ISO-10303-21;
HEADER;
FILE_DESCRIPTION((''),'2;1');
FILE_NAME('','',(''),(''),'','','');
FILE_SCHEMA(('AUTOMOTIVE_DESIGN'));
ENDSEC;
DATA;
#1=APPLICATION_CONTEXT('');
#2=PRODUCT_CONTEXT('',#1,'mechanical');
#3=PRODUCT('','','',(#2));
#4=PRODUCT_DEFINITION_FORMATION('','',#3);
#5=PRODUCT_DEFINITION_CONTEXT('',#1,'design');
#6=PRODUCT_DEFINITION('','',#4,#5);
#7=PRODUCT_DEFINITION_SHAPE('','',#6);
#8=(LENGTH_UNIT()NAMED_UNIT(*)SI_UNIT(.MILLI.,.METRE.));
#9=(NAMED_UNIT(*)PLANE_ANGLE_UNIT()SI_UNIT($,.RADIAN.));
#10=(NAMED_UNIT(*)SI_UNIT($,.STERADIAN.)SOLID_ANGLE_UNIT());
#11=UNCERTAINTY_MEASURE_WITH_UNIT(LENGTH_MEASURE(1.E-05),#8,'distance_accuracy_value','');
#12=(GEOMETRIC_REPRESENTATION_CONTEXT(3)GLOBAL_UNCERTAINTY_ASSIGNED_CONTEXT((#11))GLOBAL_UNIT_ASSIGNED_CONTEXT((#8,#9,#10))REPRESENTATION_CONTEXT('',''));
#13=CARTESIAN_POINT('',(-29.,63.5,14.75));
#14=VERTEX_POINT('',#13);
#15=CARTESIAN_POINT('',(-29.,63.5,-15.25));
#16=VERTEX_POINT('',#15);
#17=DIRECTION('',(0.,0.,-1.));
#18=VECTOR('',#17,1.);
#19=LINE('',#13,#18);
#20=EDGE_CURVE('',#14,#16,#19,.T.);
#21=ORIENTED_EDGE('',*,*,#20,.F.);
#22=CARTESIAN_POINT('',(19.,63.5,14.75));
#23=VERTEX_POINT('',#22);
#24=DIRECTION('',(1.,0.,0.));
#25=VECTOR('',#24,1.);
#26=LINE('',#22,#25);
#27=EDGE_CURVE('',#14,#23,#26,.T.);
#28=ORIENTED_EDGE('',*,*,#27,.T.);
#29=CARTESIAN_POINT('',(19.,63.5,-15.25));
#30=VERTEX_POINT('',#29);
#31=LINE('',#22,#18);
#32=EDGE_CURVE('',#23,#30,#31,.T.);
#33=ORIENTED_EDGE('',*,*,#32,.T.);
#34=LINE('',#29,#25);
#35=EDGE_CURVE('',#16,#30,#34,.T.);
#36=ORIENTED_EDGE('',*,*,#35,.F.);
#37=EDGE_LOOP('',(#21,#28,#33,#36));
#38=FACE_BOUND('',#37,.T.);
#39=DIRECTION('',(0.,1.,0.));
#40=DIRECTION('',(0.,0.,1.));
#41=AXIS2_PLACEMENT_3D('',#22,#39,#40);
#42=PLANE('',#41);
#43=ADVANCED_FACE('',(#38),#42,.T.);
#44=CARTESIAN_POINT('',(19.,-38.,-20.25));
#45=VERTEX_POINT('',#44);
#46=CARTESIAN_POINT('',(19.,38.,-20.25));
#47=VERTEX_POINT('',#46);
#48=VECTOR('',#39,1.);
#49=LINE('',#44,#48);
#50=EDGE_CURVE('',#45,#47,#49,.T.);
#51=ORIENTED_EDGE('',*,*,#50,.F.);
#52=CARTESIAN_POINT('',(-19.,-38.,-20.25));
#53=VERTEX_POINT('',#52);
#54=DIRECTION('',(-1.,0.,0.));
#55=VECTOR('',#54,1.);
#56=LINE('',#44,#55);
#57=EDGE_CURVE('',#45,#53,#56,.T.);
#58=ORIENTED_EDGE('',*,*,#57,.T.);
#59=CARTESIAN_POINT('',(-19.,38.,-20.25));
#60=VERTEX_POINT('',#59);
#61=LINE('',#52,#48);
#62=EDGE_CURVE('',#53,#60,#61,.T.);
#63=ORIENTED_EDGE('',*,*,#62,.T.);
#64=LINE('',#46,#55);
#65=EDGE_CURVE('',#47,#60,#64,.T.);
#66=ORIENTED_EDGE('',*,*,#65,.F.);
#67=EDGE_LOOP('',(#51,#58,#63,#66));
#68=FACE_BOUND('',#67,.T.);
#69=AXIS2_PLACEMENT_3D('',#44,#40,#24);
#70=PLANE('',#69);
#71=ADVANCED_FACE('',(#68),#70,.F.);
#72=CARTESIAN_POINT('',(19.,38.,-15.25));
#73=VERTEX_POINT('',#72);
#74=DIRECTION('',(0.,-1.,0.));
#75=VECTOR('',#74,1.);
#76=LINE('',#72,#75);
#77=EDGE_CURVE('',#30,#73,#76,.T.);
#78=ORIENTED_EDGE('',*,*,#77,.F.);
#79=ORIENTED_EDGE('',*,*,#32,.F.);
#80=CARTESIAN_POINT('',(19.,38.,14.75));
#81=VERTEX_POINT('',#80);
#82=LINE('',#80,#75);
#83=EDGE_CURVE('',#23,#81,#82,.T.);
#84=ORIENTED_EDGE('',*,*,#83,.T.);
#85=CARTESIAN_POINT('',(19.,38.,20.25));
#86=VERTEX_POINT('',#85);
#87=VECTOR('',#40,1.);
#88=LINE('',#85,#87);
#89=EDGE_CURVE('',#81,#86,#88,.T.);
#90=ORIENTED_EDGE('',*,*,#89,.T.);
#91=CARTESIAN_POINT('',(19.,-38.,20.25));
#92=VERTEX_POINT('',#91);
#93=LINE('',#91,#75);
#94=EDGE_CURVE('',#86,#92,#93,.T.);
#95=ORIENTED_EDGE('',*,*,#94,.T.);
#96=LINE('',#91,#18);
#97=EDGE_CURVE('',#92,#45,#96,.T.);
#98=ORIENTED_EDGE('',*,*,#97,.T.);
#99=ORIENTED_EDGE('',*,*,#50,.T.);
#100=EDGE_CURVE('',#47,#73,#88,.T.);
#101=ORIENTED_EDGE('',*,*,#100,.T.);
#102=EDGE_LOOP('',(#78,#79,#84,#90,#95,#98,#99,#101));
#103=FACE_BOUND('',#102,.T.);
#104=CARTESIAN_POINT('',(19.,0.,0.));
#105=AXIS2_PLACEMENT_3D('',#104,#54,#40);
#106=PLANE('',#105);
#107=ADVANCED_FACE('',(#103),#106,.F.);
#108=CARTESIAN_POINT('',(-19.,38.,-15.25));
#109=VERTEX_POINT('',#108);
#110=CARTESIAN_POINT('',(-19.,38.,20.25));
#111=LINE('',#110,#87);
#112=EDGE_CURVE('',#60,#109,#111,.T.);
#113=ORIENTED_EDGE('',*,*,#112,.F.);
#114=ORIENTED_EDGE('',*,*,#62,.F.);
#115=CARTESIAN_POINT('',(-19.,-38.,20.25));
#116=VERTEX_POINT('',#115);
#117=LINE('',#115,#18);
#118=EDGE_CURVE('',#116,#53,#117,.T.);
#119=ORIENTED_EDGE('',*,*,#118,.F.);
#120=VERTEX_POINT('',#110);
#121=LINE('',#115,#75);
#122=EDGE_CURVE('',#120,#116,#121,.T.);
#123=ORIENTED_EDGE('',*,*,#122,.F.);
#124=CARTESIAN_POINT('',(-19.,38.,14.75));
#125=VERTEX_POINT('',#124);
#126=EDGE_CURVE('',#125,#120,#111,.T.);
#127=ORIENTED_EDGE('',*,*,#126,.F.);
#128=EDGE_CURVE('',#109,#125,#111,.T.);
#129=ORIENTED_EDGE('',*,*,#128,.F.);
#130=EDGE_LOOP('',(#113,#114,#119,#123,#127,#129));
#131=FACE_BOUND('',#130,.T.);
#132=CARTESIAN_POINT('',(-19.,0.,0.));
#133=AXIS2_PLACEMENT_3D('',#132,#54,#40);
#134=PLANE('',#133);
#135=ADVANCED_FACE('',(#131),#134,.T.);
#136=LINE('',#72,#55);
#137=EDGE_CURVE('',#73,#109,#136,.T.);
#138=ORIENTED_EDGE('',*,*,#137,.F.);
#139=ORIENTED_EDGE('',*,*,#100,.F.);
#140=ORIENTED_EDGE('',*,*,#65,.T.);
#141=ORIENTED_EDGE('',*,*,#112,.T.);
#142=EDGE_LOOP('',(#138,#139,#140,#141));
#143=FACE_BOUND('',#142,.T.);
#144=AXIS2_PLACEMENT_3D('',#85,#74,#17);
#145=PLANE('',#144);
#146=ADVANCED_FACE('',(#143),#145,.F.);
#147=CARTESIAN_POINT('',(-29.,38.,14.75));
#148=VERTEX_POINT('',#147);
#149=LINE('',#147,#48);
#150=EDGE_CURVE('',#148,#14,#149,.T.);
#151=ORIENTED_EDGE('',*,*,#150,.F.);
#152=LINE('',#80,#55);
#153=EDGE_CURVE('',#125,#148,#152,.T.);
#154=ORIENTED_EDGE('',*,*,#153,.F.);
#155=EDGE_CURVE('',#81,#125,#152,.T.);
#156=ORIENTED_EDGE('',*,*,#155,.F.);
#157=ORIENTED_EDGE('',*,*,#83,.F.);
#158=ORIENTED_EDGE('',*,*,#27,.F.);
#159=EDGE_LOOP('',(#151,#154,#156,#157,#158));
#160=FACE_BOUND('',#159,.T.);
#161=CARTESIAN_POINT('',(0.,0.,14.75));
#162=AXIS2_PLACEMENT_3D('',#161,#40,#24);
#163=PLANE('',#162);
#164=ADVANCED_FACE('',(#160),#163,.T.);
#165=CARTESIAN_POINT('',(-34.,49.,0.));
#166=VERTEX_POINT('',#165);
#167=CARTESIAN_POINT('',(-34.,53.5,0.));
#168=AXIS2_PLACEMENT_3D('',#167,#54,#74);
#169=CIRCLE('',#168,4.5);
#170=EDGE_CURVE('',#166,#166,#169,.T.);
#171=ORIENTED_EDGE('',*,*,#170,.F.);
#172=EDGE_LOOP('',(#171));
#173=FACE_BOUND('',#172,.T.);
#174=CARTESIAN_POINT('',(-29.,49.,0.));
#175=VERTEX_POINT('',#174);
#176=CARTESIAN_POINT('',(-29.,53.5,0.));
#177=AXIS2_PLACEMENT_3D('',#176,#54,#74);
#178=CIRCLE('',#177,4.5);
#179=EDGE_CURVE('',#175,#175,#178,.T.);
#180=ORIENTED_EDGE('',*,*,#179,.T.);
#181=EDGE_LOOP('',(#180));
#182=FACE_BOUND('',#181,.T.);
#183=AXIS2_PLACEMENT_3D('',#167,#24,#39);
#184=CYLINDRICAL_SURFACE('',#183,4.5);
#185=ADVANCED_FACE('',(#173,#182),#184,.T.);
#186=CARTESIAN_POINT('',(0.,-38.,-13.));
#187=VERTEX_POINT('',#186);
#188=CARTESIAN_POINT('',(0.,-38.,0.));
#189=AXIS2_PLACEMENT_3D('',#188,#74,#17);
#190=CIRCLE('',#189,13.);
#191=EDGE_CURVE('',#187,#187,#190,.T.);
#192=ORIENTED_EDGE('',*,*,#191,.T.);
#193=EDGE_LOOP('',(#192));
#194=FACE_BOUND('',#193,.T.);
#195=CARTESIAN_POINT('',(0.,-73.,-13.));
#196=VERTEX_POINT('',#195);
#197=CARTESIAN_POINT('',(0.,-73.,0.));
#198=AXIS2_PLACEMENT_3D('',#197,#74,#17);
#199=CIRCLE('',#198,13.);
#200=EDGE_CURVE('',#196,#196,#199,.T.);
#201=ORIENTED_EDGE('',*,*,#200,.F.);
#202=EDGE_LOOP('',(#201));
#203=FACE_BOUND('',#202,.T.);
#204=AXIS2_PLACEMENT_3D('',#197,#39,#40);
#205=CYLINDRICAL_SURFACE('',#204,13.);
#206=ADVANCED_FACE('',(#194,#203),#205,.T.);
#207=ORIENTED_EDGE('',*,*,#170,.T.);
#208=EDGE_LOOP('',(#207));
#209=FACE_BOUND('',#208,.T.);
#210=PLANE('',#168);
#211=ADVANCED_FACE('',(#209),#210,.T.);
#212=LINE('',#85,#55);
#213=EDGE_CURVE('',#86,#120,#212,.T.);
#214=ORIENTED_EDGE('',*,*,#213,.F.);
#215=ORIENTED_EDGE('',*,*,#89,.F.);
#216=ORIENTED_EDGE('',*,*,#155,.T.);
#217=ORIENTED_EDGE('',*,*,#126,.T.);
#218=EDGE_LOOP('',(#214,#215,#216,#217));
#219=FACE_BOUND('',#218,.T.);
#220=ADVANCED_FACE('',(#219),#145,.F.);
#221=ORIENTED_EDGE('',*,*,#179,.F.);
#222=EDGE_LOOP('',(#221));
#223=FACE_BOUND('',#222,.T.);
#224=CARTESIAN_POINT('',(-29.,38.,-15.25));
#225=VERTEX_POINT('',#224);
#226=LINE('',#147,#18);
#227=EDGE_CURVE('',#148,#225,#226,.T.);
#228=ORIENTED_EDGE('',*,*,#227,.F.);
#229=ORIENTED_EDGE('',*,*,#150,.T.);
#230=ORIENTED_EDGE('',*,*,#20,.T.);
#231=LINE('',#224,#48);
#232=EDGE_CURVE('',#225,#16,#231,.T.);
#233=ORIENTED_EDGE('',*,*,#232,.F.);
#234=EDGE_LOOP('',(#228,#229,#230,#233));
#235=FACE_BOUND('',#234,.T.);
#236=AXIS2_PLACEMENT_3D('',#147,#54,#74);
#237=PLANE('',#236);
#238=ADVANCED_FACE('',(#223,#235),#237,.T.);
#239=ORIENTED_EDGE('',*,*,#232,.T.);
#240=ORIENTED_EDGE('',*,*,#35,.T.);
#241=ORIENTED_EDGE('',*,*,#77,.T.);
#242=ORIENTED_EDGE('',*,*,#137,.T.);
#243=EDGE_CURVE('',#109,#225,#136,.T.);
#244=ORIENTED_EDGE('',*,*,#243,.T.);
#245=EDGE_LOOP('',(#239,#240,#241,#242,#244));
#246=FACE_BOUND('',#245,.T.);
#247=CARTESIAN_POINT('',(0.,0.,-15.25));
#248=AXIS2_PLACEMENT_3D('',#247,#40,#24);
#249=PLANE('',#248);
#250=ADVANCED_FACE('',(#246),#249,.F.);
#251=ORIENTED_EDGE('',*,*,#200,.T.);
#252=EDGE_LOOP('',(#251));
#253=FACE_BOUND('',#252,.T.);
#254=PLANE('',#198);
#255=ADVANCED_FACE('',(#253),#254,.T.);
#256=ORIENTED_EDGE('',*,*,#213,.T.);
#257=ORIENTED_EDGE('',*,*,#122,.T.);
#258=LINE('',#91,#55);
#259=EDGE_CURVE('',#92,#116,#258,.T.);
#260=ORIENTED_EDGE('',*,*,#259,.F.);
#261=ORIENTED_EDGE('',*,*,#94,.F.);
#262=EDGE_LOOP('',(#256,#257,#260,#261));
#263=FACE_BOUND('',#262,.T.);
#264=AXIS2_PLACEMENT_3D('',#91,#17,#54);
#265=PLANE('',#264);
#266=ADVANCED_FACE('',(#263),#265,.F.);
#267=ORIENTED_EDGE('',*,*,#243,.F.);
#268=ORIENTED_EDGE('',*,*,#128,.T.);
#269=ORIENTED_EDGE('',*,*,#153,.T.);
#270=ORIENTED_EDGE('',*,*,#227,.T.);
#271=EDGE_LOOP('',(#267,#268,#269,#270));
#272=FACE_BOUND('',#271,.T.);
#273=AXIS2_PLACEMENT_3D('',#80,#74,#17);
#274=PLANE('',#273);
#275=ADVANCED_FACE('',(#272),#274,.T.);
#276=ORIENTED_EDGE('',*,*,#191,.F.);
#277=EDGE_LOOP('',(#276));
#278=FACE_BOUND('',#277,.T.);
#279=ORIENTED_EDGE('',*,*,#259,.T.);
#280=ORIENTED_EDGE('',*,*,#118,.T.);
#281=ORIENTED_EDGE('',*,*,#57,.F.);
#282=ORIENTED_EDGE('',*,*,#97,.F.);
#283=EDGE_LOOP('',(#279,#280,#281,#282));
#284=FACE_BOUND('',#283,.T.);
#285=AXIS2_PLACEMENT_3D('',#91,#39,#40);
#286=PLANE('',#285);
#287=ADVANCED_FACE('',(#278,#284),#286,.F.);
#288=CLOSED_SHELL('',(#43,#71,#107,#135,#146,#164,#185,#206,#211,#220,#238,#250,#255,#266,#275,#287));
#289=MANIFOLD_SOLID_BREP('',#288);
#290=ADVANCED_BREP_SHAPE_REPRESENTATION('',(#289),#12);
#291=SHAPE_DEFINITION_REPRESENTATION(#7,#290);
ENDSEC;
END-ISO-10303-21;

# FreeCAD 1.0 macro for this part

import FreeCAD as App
import Part
import Sketcher
Q = App.Units.Quantity

doc = App.newDocument("Part")
params = doc.addObject("Spreadsheet::Sheet", "Params")
for row, (alias, value) in enumerate([
    ("sketch1_width", "76 mm"),
    ("sketch1_height", "40.5 mm"),
    ("pad1_length", "38 mm"),
    ("sketch2_diameter", "26 mm"),
    ("pad2_length", "35 mm"),
    ("sketch3_width", "48 mm"),
    ("sketch3_height", "25.5 mm"),
    ("pad3_length", "30 mm"),
    ("sketch4_diameter", "9 mm"),
    ("pad4_length", "5 mm"),
], start=1):
    params.set(f"A{row}", alias)
    params.set(f"B{row}", "=" + value)
    params.setAlias(f"B{row}", alias)

body = doc.addObject("PartDesign::Body", "Body")

# Sketch on YZ plane
sketch1 = doc.addObject("Sketcher::SketchObject", "Sketch")
body.addObject(sketch1)
sketch1.AttachmentSupport = (doc.YZ_Plane, [""])
sketch1.MapMode = "FlatFace"
sketch1.addGeometry([
    Part.LineSegment(App.Vector(38, 20, 0), App.Vector(-38, 20, 0)),
    Part.LineSegment(App.Vector(-38, 20, 0), App.Vector(-38, -20, 0)),
    Part.LineSegment(App.Vector(-38, -20, 0), App.Vector(38, -20, 0)),
    Part.LineSegment(App.Vector(38, -20, 0), App.Vector(38, 20, 0)),
], False)
sketch1.addConstraint([
    Sketcher.Constraint("Coincident", 0, 2, 1, 1),
    Sketcher.Constraint("Coincident", 1, 2, 2, 1),
    Sketcher.Constraint("Coincident", 2, 2, 3, 1),
    Sketcher.Constraint("Coincident", 3, 2, 0, 1),
    Sketcher.Constraint("Horizontal", 0),
    Sketcher.Constraint("Vertical", 1),
    Sketcher.Constraint("Horizontal", 2),
    Sketcher.Constraint("Vertical", 3),
    Sketcher.Constraint("Symmetric", 0, 2, 2, 2, -1, 1),
    Sketcher.Constraint("DistanceX", 0, 2, 0, 1, Q("76 mm")),
    Sketcher.Constraint("DistanceY", 1, 2, 1, 1, Q("40.5 mm")),
])
sketch1.setExpression("Constraints[9]", "Params.sketch1_width")
sketch1.setExpression("Constraints[10]", "Params.sketch1_height")
pad1 = doc.addObject("PartDesign::Pad", "Pad")
body.addObject(pad1)
pad1.Profile = sketch1
pad1.setExpression("Length", "Params.pad1_length")
pad1.Midplane = True

# Sketch on XZ plane
sketch2 = doc.addObject("Sketcher::SketchObject", "Sketch001")
body.addObject(sketch2)
sketch2.AttachmentSupport = (doc.XZ_Plane, [""])
sketch2.MapMode = "FlatFace"
sketch2.AttachmentOffset = App.Placement(App.Vector(0, 0, 38), App.Rotation())
sketch2.addGeometry(Part.Circle(App.Vector(0, 0, 0), App.Vector(0, 0, 1), 13), False)
sketch2.addConstraint([
    Sketcher.Constraint("Coincident", 0, 3, -1, 1),
    Sketcher.Constraint("Diameter", 0, Q("26 mm")),
])
sketch2.setExpression("Constraints[1]", "Params.sketch2_diameter")
pad2 = doc.addObject("PartDesign::Pad", "Pad001")
body.addObject(pad2)
pad2.Profile = sketch2
pad2.setExpression("Length", "Params.pad2_length")

# Sketch on XY plane
sketch3 = doc.addObject("Sketcher::SketchObject", "Sketch002")
body.addObject(sketch3)
sketch3.AttachmentSupport = (doc.XY_Plane, [""])
sketch3.MapMode = "FlatFace"
sketch3.AttachmentOffset = App.Placement(App.Vector(0, 0, -15.25), App.Rotation())
sketch3.addGeometry([
    Part.LineSegment(App.Vector(19, 64, 0), App.Vector(19, 38, 0)),
    Part.LineSegment(App.Vector(19, 38, 0), App.Vector(-29, 38, 0)),
    Part.LineSegment(App.Vector(-29, 38, 0), App.Vector(-29, 64, 0)),
    Part.LineSegment(App.Vector(-29, 64, 0), App.Vector(19, 64, 0)),
], False)
sketch3.addConstraint([
    Sketcher.Constraint("Coincident", 0, 2, 1, 1),
    Sketcher.Constraint("Coincident", 1, 2, 2, 1),
    Sketcher.Constraint("Coincident", 2, 2, 3, 1),
    Sketcher.Constraint("Coincident", 3, 2, 0, 1),
    Sketcher.Constraint("Vertical", 0),
    Sketcher.Constraint("Horizontal", 1),
    Sketcher.Constraint("Vertical", 2),
    Sketcher.Constraint("Horizontal", 3),
    Sketcher.Constraint("DistanceX", 1, 2, 1, 1, Q("48 mm")),
    Sketcher.Constraint("DistanceY", 0, 2, 0, 1, Q("25.5 mm")),
    Sketcher.Constraint("DistanceX", -1, 1, 0, 2, Q("19 mm")),
    Sketcher.Constraint("DistanceY", -1, 1, 0, 2, Q("38 mm")),
])
sketch3.setExpression("Constraints[8]", "Params.sketch3_width")
sketch3.setExpression("Constraints[9]", "Params.sketch3_height")
pad3 = doc.addObject("PartDesign::Pad", "Pad002")
body.addObject(pad3)
pad3.Profile = sketch3
pad3.setExpression("Length", "Params.pad3_length")

# Sketch on YZ plane
sketch4 = doc.addObject("Sketcher::SketchObject", "Sketch003")
body.addObject(sketch4)
sketch4.AttachmentSupport = (doc.YZ_Plane, [""])
sketch4.MapMode = "FlatFace"
sketch4.AttachmentOffset = App.Placement(App.Vector(0, 0, -29), App.Rotation())
sketch4.addGeometry(Part.Circle(App.Vector(53.5, 0, 0), App.Vector(0, 0, 1), 4.5), False)
sketch4.addConstraint([
    Sketcher.Constraint("PointOnObject", 0, 3, -1),
    Sketcher.Constraint("Diameter", 0, Q("9 mm")),
    Sketcher.Constraint("DistanceX", -1, 1, 0, 3, Q("53.5 mm")),
])
sketch4.setExpression("Constraints[1]", "Params.sketch4_diameter")
pad4 = doc.addObject("PartDesign::Pad", "Pad003")
body.addObject(pad4)
pad4.Profile = sketch4
pad4.setExpression("Length", "Params.pad4_length")
pad4.Reversed = True

doc.recompute()
